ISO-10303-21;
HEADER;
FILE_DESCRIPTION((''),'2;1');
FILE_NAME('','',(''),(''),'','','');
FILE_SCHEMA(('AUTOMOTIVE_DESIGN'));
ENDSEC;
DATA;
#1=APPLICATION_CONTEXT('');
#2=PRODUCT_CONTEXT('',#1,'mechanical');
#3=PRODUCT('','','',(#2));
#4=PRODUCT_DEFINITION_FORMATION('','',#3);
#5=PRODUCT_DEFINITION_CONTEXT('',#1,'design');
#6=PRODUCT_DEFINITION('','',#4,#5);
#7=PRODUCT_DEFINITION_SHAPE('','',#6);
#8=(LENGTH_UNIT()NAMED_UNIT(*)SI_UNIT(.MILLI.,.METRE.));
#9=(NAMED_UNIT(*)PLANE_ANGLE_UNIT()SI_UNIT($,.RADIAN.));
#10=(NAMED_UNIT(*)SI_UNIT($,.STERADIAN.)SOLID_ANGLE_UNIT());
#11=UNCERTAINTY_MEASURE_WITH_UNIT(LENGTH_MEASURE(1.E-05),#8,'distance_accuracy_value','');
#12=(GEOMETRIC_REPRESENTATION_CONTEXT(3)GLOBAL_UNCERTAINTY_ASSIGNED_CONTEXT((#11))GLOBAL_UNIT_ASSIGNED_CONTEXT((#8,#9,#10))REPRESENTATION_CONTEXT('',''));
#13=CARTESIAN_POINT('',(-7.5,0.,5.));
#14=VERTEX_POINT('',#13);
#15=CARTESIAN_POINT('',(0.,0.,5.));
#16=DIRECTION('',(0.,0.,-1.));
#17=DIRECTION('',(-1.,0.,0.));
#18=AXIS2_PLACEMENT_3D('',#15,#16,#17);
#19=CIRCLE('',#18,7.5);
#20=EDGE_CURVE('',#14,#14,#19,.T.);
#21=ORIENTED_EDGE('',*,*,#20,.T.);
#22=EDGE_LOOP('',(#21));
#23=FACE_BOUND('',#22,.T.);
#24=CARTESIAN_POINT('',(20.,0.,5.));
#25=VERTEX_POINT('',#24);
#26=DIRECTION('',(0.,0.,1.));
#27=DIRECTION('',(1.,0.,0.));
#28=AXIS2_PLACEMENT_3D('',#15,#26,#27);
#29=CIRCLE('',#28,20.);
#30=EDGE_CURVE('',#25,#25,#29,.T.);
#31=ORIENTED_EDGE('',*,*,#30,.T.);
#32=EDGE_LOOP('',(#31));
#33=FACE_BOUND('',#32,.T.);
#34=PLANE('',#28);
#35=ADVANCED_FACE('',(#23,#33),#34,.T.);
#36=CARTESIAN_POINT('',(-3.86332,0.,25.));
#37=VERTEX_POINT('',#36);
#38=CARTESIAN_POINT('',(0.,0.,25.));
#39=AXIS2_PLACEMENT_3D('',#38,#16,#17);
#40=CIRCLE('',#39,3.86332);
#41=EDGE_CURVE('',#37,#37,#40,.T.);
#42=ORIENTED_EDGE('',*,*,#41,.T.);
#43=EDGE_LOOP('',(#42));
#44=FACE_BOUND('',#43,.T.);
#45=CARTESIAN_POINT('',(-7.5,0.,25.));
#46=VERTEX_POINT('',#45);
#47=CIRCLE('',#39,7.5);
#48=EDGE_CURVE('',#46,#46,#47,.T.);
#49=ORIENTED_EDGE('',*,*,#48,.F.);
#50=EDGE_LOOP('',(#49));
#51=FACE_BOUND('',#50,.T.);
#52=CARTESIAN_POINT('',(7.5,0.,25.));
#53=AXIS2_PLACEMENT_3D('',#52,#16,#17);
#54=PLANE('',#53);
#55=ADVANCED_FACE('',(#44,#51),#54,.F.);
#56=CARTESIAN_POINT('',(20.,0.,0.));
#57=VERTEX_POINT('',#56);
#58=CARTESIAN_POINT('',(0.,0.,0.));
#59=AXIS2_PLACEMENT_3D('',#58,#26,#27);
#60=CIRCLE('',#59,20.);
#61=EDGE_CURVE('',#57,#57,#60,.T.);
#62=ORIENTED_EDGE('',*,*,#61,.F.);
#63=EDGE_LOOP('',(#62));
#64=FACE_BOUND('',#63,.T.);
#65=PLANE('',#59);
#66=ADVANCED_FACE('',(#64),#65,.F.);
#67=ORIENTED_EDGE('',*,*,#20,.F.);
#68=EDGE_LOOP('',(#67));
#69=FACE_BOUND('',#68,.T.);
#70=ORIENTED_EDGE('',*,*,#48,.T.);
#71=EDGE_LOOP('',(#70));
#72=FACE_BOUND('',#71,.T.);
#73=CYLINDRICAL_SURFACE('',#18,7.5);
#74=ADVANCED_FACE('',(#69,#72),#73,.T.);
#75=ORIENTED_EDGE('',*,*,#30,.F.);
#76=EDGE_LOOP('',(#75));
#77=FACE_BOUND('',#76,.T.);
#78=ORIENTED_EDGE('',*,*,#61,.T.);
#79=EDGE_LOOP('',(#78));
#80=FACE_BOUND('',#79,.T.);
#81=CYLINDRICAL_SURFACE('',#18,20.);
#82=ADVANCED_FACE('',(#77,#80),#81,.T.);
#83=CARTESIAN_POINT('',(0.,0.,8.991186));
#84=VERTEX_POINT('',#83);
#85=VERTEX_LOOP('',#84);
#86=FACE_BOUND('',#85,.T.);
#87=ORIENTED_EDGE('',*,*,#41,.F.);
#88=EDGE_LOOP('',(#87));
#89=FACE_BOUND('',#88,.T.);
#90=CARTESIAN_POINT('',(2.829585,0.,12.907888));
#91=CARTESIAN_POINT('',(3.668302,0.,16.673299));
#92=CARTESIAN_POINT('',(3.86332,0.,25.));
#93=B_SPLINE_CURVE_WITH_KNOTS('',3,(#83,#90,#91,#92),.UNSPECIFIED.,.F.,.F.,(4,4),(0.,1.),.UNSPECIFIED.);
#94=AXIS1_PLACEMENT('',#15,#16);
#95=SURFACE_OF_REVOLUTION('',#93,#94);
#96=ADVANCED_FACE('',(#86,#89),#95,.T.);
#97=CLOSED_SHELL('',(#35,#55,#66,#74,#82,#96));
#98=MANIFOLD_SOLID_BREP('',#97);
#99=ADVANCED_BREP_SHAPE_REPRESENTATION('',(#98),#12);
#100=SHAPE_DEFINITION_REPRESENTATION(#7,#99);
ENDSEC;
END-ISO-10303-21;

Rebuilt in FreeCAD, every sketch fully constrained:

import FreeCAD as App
import Part
import Sketcher

V = App.Vector

doc = App.newDocument("Part")
params = doc.addObject("Spreadsheet::Sheet", "Params")
for row, (alias, value) in enumerate([
    ("sketch1_diameter", "40 mm"),
    ("pad1_length", "5 mm"),
    ("sketch2_height", "20 mm"),
    ("sketch2_width", "7.5 mm"),
    ("revolution_angle", "360 deg"),
], start=1):
    params.set(f"A{row}", alias)
    params.set(f"B{row}", "=" + value)
    params.setAlias(f"B{row}", alias)

body = doc.addObject("PartDesign::Body", "Body")

# Sketch on XY plane
sketch1 = body.newObject("Sketcher::SketchObject", "Sketch")
sketch1.AttachmentSupport = (doc.getObject("XY_Plane"), [""])
sketch1.MapMode = "FlatFace"
sketch1.addGeometry(Part.Circle(V(0, 0, 0), V(0, 0, 1), 20), False)
sketch1.addConstraint([
    Sketcher.Constraint("Coincident", 0, 3, -1, 1),
    Sketcher.Constraint("Diameter", 0, 40.0),
])
sketch1.setExpression("Constraints[1]", "Params.sketch1_diameter")
pad1 = body.newObject("PartDesign::Pad", "Pad")
pad1.Profile = sketch1
pad1.setExpression("Length", "Params.pad1_length")

# Sketch on XZ plane
sketch2 = body.newObject("Sketcher::SketchObject", "Sketch001")
sketch2.AttachmentSupport = (doc.getObject("XZ_Plane"), [""])
sketch2.MapMode = "FlatFace"
sketch2.addGeometry([
    Part.LineSegment(V(7.5, 25, 0), V(7.5, 5, 0)),  # 0
    Part.LineSegment(V(7.5, 5, 0), V(0, 5, 0)),  # 1
    Part.LineSegment(V(0, 5, 0), V(0, 8.991186, 0)),  # 2
    Part.BSplineCurve([V(3.86332, 25, 0), V(3.668302, 16.673299, 0), V(2.829585, 12.907888, 0), V(0, 8.991186, 0)], [4, 4], [0, 1], False, 3, [1, 1, 1, 1], False),  # 3
    Part.LineSegment(V(3.86332, 25, 0), V(7.5, 25, 0)),  # 4
], False)
sketch2.addConstraint([
    Sketcher.Constraint("Block", 3),
    Sketcher.Constraint("Coincident", 0, 2, 1, 1),
    Sketcher.Constraint("Coincident", 1, 2, 2, 1),
    Sketcher.Constraint("Coincident", 2, 2, 3, 2),
    Sketcher.Constraint("Coincident", 3, 1, 4, 1),
    Sketcher.Constraint("Coincident", 4, 2, 0, 1),
    Sketcher.Constraint("Vertical", 0),
    Sketcher.Constraint("Horizontal", 1),
    Sketcher.Constraint("Vertical", 2),
    Sketcher.Constraint("Horizontal", 4),
    Sketcher.Constraint("DistanceY", 0, 2, 0, 1, 20.0),
    Sketcher.Constraint("DistanceX", 1, 2, 1, 1, 7.5),
])
sketch2.setExpression("Constraints[10]", "Params.sketch2_height")
sketch2.setExpression("Constraints[11]", "Params.sketch2_width")
revolution = body.newObject("PartDesign::Revolution", "Revolution")
revolution.Profile = sketch2
revolution.ReferenceAxis = (sketch2, ["V_Axis"])
revolution.setExpression("Angle", "Params.revolution_angle")

doc.recompute()
